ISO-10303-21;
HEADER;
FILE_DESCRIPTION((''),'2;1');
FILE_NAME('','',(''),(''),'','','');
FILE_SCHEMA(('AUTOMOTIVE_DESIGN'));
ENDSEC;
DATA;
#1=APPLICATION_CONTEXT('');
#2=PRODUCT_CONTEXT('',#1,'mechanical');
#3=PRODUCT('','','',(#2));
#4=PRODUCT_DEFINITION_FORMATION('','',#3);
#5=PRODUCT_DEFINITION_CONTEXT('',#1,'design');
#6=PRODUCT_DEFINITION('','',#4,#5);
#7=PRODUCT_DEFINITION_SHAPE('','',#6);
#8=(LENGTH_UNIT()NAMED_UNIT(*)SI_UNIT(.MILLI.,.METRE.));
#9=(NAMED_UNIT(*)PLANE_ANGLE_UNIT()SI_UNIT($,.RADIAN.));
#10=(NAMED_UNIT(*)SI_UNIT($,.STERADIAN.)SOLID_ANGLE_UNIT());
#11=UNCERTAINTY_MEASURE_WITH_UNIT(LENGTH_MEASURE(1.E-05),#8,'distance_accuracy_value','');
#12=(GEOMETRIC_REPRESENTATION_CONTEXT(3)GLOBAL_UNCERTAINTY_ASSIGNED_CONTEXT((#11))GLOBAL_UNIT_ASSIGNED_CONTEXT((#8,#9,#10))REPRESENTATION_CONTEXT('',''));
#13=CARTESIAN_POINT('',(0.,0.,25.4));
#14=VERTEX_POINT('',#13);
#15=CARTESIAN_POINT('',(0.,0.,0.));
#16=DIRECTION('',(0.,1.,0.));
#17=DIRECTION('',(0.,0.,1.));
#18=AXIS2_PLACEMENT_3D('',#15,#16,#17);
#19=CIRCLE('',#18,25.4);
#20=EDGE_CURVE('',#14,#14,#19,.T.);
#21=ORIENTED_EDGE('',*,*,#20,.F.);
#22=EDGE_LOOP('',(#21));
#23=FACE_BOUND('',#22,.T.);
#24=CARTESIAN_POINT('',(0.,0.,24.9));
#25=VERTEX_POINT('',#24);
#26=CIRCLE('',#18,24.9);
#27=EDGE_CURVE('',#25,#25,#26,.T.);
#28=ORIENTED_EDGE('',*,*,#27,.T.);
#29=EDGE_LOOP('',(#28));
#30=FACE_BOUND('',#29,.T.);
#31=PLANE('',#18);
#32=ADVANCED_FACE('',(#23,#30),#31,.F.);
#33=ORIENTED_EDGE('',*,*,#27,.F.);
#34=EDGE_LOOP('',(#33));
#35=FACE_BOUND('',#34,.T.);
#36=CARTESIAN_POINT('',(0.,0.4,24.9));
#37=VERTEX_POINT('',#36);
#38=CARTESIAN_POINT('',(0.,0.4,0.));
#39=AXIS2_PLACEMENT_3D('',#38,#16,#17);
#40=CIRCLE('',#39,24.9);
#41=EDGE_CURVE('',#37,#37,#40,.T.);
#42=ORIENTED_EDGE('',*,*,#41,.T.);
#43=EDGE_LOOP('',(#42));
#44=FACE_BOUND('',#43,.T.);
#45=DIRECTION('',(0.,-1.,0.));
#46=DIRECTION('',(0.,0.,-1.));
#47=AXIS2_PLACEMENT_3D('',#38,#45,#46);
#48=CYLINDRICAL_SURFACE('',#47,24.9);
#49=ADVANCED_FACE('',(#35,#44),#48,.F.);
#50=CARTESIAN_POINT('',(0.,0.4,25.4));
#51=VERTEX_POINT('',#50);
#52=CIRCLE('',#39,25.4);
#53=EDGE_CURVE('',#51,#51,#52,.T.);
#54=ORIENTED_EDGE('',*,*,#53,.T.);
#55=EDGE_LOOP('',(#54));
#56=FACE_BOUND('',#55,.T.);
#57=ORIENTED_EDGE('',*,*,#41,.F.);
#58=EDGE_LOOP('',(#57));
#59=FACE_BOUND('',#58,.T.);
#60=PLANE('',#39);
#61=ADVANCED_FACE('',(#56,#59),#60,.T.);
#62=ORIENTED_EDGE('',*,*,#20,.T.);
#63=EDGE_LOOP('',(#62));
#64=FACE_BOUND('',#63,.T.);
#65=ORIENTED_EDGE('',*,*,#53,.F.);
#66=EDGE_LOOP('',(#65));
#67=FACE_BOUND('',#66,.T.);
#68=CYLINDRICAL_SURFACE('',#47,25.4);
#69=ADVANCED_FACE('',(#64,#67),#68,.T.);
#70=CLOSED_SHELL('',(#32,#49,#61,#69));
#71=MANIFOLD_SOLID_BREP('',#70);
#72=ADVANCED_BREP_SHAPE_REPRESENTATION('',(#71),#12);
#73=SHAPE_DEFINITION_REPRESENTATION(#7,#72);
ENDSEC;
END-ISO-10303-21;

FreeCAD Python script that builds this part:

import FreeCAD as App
import Part
import Sketcher
from FreeCAD import Vector

doc = App.newDocument("Part")
params = doc.addObject("Spreadsheet::Sheet", "Params")
for row, (alias, value) in enumerate([
    ("sketch1_diameter", "50.8 mm"),
    ("sketch1_diameter2", "49.8 mm"),
    ("pad1_length", "0.4 mm"),
], start=1):
    params.set(f"A{row}", alias)
    params.set(f"B{row}", "=" + value)
    params.setAlias(f"B{row}", alias)

body = doc.addObject("PartDesign::Body", "Body")

sketch1 = body.newObject("Sketcher::SketchObject", "Sketch")
sketch1.AttachmentSupport = (doc.getObject("XZ_Plane"), [""])
sketch1.MapMode = "FlatFace"
sketch1.addGeometry([
    Part.Circle(Vector(0, 0, 0), Vector(0, 0, 1), 25),
    Part.Circle(Vector(0, 0, 0), Vector(0, 0, 1), 25),
], False)
sketch1.addConstraint([
    Sketcher.Constraint("Coincident", 0, 3, -1, 1),
    Sketcher.Constraint("Coincident", 1, 3, -1, 1),
    Sketcher.Constraint("Diameter", 0, 50.8),
    Sketcher.Constraint("Diameter", 1, 49.8),
])
sketch1.setExpression("Constraints[2]", "Params.sketch1_diameter")
sketch1.setExpression("Constraints[3]", "Params.sketch1_diameter2")
pad1 = body.newObject("PartDesign::Pad", "Pad")
pad1.Profile = sketch1
pad1.setExpression("Length", "Params.pad1_length")
pad1.Reversed = True

doc.recompute()
